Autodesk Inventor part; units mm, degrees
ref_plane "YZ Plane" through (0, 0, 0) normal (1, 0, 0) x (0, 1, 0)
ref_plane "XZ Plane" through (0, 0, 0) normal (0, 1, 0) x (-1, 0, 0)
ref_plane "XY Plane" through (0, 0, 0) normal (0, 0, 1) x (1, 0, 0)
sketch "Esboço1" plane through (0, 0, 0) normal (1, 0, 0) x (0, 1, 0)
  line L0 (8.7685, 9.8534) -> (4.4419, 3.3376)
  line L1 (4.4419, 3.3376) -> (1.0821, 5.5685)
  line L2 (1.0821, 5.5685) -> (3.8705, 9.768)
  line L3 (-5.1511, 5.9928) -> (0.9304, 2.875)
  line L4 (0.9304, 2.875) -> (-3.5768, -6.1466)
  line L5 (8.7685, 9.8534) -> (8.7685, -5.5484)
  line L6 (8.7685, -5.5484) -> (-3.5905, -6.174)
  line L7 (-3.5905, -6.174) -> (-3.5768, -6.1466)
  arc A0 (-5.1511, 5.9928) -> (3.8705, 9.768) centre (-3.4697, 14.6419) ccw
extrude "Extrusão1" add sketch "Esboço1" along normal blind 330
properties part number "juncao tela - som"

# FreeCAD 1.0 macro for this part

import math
import FreeCAD as App
import Part
import Sketcher
from FreeCAD import Vector
Q = App.Units.Quantity

doc = App.newDocument("Part")
body = doc.addObject("PartDesign::Body", "Body")

sketch1 = doc.addObject("Sketcher::SketchObject", "Sketch")
body.addObject(sketch1)
sketch1.AttachmentSupport = (doc.YZ_Plane, [""])
sketch1.MapMode = "FlatFace"
sketch1.addGeometry([
    Part.LineSegment(Vector(8.768, -5.548, 0), Vector(8.768, 9.853, 0)),
    Part.LineSegment(Vector(8.768, 9.853, 0), Vector(4.442, 3.338, 0)),
    Part.LineSegment(Vector(4.442, 3.338, 0), Vector(1.082, 5.569, 0)),
    Part.LineSegment(Vector(1.082, 5.569, 0), Vector(3.87, 9.768, 0)),
    Part.ArcOfCircle(Part.Circle(Vector(-3.47, 14.642, 0), Vector(0, 0, 1), 8.811), math.radians(-101), math.radians(-34)),
    Part.LineSegment(Vector(-5.151, 5.993, 0), Vector(0.93, 2.875, 0)),
    Part.LineSegment(Vector(0.93, 2.875, 0), Vector(-3.577, -6.147, 0)),
    Part.LineSegment(Vector(-3.577, -6.147, 0), Vector(-3.591, -6.174, 0)),
    Part.LineSegment(Vector(-3.591, -6.174, 0), Vector(8.768, -5.548, 0)),
], False)
sketch1.addConstraint([
    Sketcher.Constraint("Coincident", 0, 2, 1, 1),
    Sketcher.Constraint("Coincident", 1, 2, 2, 1),
    Sketcher.Constraint("Coincident", 2, 2, 3, 1),
    Sketcher.Constraint("Tangent", 3, 2, 4, 2),
    Sketcher.Constraint("Coincident", 4, 1, 5, 1),
    Sketcher.Constraint("Coincident", 5, 2, 6, 1),
    Sketcher.Constraint("Coincident", 6, 2, 7, 1),
    Sketcher.Constraint("Coincident", 7, 2, 8, 1),
    Sketcher.Constraint("Coincident", 8, 2, 0, 1),
    Sketcher.Constraint("Vertical", 0),
    Sketcher.Constraint("Perpendicular", 1, 2),
    Sketcher.Constraint("Perpendicular", 2, 3),
    Sketcher.Constraint("Parallel", 6, 7),
    Sketcher.Constraint("Radius", 4, Q("8.811 mm")),
    Sketcher.Constraint("DistanceX", 5, 2, 3, 2, Q("2.94 mm")),
    Sketcher.Constraint("Distance", 2, Q("4.033 mm")),
    Sketcher.Constraint("Distance", 3, Q("5.041 mm")),
    Sketcher.Constraint("DistanceY", 0, 1, 0, 2, Q("15.4018 mm")),
    Sketcher.Constraint("DistanceY", -1, 1, 4, 3, Q("14.642 mm")),
    Sketcher.Constraint("DistanceX", -1, 1, 1, 2, Q("4.442 mm")),
    Sketcher.Constraint("DistanceX", -1, 1, 2, 2, Q("1.082 mm")),
    Sketcher.Constraint("DistanceX", 4, 1, -1, 1, Q("5.151 mm")),
    Sketcher.Constraint("DistanceY", -1, 1, 5, 2, Q("2.875 mm")),
    Sketcher.Constraint("DistanceY", 7, 2, -1, 1, Q("6.174 mm")),
    Sketcher.Constraint("DistanceY", 2, 2, 0, 2, Q("4.285 mm")),
    Sketcher.Constraint("DistanceX", 6, 2, 2, 2, Q("4.659 mm")),
    Sketcher.Constraint("DistanceY", 6, 2, 2, 2, Q("11.715 mm")),
])
pad1 = doc.addObject("PartDesign::Pad", "Pad")
body.addObject(pad1)
pad1.Profile = sketch1
pad1.Length = 330

doc.recompute()
